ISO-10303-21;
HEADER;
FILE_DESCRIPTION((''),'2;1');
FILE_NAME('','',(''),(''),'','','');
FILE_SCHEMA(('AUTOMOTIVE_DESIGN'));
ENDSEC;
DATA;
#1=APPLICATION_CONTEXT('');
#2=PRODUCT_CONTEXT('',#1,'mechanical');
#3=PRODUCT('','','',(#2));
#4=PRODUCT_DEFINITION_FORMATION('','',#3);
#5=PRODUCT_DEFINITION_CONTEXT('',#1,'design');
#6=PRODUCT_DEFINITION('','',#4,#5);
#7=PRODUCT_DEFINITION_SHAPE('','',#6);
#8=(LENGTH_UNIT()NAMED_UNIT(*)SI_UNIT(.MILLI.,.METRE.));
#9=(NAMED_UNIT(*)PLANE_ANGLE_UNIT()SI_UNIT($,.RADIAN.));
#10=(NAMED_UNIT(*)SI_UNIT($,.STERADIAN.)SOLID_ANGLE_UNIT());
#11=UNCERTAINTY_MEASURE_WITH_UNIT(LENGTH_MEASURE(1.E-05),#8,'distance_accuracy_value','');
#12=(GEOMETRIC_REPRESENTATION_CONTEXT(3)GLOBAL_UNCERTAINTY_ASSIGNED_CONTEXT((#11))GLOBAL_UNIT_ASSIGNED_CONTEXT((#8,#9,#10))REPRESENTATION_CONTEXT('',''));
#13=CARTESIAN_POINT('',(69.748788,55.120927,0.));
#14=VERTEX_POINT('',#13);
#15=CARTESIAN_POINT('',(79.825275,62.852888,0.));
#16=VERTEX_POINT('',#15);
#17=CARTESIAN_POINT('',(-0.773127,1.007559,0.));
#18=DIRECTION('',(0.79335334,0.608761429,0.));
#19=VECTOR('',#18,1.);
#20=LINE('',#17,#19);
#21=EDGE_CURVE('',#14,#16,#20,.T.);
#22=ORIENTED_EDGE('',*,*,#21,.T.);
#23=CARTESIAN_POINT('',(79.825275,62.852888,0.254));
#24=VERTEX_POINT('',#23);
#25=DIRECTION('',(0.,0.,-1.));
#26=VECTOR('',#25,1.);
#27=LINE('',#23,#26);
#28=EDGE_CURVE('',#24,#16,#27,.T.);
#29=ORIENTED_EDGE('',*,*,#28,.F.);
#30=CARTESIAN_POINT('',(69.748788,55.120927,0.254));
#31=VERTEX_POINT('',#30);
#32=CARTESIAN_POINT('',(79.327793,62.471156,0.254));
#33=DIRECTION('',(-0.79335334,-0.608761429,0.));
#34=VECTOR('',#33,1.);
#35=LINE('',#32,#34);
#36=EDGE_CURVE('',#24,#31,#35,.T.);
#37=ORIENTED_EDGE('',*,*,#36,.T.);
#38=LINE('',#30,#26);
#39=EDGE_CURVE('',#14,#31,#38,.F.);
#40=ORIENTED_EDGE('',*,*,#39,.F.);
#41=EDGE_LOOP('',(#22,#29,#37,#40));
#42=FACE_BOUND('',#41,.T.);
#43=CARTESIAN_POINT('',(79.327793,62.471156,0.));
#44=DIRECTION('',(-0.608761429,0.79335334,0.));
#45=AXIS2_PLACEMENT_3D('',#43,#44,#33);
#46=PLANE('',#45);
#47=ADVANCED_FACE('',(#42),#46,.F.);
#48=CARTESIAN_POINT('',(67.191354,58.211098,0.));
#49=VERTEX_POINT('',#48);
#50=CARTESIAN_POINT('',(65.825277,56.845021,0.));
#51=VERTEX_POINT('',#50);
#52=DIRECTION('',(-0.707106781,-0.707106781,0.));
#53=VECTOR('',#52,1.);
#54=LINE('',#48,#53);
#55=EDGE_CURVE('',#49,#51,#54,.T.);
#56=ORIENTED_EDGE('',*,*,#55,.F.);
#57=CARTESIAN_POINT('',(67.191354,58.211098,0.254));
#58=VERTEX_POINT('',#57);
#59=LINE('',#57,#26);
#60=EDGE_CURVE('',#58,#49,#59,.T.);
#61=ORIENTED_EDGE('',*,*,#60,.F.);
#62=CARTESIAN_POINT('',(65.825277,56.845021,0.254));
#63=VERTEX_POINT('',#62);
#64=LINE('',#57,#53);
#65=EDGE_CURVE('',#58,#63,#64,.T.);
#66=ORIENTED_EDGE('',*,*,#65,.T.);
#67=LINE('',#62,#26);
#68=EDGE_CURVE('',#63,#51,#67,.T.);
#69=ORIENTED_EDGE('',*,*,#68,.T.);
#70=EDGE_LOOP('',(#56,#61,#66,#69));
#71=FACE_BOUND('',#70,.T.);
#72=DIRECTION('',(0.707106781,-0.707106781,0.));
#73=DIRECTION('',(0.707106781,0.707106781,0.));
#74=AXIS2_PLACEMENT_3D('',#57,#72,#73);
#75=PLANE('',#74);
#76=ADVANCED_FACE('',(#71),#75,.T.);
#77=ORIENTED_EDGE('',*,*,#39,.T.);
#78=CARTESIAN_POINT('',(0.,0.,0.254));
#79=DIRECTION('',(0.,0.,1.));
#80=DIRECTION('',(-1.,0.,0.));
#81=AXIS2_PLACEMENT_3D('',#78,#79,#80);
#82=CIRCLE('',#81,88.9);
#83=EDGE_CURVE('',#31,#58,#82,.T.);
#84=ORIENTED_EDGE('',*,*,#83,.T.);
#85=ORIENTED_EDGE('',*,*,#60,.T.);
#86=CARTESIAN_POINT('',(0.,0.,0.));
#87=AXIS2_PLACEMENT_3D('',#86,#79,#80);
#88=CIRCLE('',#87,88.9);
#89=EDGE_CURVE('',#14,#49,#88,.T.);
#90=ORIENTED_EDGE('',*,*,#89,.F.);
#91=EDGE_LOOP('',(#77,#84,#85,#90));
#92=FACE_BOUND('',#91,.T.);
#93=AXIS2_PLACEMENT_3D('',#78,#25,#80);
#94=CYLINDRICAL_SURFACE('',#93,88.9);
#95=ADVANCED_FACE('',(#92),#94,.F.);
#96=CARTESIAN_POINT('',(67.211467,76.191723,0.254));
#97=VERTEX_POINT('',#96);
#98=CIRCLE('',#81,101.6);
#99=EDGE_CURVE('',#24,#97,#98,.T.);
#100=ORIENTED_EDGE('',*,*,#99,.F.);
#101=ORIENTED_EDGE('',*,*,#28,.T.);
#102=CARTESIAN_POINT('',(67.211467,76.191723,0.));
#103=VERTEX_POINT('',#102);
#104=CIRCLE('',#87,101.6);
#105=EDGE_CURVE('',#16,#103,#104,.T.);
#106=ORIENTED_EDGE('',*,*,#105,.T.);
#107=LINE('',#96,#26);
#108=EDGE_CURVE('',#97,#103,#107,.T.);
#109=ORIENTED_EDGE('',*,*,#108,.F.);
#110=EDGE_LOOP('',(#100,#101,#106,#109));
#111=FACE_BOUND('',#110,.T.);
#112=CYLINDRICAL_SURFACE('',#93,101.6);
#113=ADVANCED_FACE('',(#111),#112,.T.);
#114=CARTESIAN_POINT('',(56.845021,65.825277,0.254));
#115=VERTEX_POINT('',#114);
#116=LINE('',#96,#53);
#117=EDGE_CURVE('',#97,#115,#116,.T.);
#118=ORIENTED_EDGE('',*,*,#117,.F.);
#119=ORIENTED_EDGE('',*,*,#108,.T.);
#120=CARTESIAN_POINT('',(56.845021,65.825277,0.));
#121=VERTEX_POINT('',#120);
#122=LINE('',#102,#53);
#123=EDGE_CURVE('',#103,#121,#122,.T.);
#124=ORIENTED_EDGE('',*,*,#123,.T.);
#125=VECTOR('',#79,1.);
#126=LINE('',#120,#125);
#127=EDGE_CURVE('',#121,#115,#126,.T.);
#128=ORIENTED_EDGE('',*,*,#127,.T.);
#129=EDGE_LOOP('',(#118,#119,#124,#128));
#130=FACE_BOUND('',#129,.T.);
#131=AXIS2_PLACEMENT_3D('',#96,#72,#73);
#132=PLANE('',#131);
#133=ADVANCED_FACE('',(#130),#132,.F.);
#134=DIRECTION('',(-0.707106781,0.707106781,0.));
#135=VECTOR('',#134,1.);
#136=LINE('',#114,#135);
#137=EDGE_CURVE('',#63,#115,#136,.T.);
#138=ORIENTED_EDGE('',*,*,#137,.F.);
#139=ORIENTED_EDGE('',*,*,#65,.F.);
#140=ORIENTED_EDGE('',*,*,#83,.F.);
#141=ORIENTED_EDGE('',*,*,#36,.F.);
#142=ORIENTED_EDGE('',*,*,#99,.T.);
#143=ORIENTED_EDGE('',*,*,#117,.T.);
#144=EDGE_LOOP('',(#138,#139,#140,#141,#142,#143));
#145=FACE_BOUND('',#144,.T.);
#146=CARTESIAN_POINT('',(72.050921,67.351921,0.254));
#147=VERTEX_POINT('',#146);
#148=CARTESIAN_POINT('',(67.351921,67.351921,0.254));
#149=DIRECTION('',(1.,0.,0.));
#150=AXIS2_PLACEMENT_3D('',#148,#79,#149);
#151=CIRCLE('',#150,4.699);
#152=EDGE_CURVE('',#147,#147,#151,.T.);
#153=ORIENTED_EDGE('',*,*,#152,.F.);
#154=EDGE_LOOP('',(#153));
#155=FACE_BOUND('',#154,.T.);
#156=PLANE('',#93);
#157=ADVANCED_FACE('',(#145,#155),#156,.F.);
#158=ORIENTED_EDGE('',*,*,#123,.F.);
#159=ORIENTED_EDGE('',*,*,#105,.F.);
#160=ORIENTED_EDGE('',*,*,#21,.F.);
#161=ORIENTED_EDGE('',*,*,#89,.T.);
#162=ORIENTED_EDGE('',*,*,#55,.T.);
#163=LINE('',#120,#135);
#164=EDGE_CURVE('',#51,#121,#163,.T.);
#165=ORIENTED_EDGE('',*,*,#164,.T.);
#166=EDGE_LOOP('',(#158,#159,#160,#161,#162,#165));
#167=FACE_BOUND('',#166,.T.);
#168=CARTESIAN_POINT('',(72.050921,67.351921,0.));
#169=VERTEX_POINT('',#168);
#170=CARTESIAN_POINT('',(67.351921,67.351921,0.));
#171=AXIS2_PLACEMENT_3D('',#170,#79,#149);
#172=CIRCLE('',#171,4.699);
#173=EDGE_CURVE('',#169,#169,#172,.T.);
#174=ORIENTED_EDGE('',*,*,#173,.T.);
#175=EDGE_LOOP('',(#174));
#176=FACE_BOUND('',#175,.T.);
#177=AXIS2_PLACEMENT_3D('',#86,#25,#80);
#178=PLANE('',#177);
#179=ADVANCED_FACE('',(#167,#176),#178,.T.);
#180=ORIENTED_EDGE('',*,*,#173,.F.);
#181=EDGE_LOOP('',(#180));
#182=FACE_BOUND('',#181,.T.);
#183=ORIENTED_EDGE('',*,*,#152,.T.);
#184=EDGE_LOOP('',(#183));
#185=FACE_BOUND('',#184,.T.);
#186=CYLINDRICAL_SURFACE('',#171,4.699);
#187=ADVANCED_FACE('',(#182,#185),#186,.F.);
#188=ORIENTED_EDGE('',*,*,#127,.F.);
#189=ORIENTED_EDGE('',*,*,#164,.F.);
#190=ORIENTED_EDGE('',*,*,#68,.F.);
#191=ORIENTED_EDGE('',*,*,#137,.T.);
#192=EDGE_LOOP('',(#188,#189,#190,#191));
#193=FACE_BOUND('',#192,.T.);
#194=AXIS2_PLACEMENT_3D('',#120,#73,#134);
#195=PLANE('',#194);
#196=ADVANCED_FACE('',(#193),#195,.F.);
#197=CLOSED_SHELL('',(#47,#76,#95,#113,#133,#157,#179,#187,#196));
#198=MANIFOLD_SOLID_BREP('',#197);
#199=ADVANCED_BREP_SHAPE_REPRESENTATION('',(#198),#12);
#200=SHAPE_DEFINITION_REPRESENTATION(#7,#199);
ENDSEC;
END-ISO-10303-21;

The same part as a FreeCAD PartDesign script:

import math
import FreeCAD as App
import Part
import Sketcher
Q = App.Units.Quantity


def add_polygon(sketch, points):
    """Adds a closed chain of lines whose ends are joined by coincident constraints."""
    first, n = sketch.GeometryCount, len(points)
    for a, b in zip(points, points[1:] + points[:1]):
        sketch.addGeometry(Part.LineSegment(App.Vector(*a, 0), App.Vector(*b, 0)), False)
    for i in range(n):
        sketch.addConstraint(Sketcher.Constraint("Coincident", first + i, 2, first + (i + 1) % n, 1))

doc = App.newDocument("Part")
params = doc.addObject("Spreadsheet::Sheet", "Params")
for row, (alias, value) in enumerate([
    ("sketch1_radius", "4 in"),
    ("sketch1_radius2", "3.5 in"),
    ("sketch1_radius3", "0.625 in"),
    ("sketch1_radius4", "1.125 in"),
    ("pad1_length", "0.01 in"),
    ("sketch2_diameter", "0.37 in"),
    ("sketch3_width", "0.1 in"),
    ("sketch3_length", "0.1 in"),
    ("sketch3_length2", "0.05 in"),
    ("sketch3_height", "0.025 in"),
    ("sketch3_length3", "0.025 in"),
    ("sketch4_length", "0.635 in"),
], start=1):
    params.set(f"A{row}", alias)
    params.set(f"B{row}", "=" + value)
    params.setAlias(f"B{row}", alias)

body = doc.addObject("PartDesign::Body", "Body")

sketch1 = doc.addObject("Sketcher::SketchObject", "Sketch")
body.addObject(sketch1)
sketch1.AttachmentSupport = (doc.XY_Plane, [""])
sketch1.MapMode = "FlatFace"
sketch1.addGeometry([
    Part.LineSegment(App.Vector(67.2, 76.2, 0), App.Vector(8.7, 17.7, 0)),
    Part.LineSegment(App.Vector(8.7, 17.7, 0), App.Vector(7.2, 14.1, 0)),
    Part.ArcOfCircle(Part.Circle(App.Vector(0, 0, 0), App.Vector(0, 0, 1), 15.9), math.radians(-18), math.radians(63)),
    Part.LineSegment(App.Vector(15.1, -4.9, 0), App.Vector(18.6, -6.3, 0)),
    Part.LineSegment(App.Vector(18.6, -6.3, 0), App.Vector(101.4, -6.3, 0)),
    Part.ArcOfCircle(Part.Circle(App.Vector(0, 0, 0), App.Vector(0, 0, 1), 101.6), math.radians(-4), math.radians(49)),
    Part.ArcOfCircle(Part.Circle(App.Vector(0, 0, 0), App.Vector(0, 0, 1), 88.9), math.radians(4), math.radians(41)),
    Part.LineSegment(App.Vector(88.7, 6.3, 0), App.Vector(27.9, 6.3, 0)),
    Part.ArcOfCircle(Part.Circle(App.Vector(0, 0, 0), App.Vector(0, 0, 1), 28.6), math.radians(12.84), math.radians(32.16)),
    Part.LineSegment(App.Vector(24.2, 15.2, 0), App.Vector(67.2, 58.2, 0)),
], False)
sketch1.addConstraint([
    Sketcher.Constraint("Coincident", 0, 2, 1, 1),
    Sketcher.Constraint("Coincident", 1, 2, 2, 2),
    Sketcher.Constraint("Coincident", 2, 1, 3, 1),
    Sketcher.Constraint("Coincident", 3, 2, 4, 1),
    Sketcher.Constraint("Coincident", 4, 2, 5, 1),
    Sketcher.Constraint("Coincident", 5, 2, 0, 1),
    Sketcher.Constraint("Coincident", 6, 1, 7, 1),
    Sketcher.Constraint("Coincident", 7, 2, 8, 1),
    Sketcher.Constraint("Coincident", 8, 2, 9, 1),
    Sketcher.Constraint("Coincident", 9, 2, 6, 2),
    Sketcher.Constraint("Horizontal", 4),
    Sketcher.Constraint("Horizontal", 7),
    Sketcher.Constraint("Coincident", 2, 3, -1, 1),
    Sketcher.Constraint("Coincident", 5, 3, -1, 1),
    Sketcher.Constraint("Coincident", 6, 3, -1, 1),
    Sketcher.Constraint("Coincident", 8, 3, -1, 1),
    Sketcher.Constraint("Perpendicular", 1, 3),
    Sketcher.Constraint("Parallel", 0, 9),
    Sketcher.Constraint("Equal", 1, 3),
    Sketcher.Constraint("Radius", 5, Q("4 in")),
    Sketcher.Constraint("Radius", 6, Q("3.5 in")),
    Sketcher.Constraint("Angle", 0, Q("-135 deg")),
    Sketcher.Constraint("Radius", 2, Q("0.625 in")),
    Sketcher.Constraint("Radius", 8, Q("1.125 in")),
    Sketcher.Constraint("Angle", 1, Q("-112.5 deg")),
    Sketcher.Constraint("DistanceY", 4, 2, 6, 1, Q("0.5 in")),
    Sketcher.Constraint("DistanceY", 3, 2, -1, 1, Q("0.25 in")),
    Sketcher.Constraint("DistanceY", 2, 1, -1, 1, 4.882301),
    Sketcher.Constraint("DistanceY", -1, 1, 9, 2, 58.211098),
    Sketcher.Constraint("DistanceX", 5, 2, 4, 2, 34.189901),
])
sketch1.setExpression("Constraints[19]", "Params.sketch1_radius")
sketch1.setExpression("Constraints[20]", "Params.sketch1_radius2")
sketch1.setExpression("Constraints[22]", "Params.sketch1_radius3")
sketch1.setExpression("Constraints[23]", "Params.sketch1_radius4")
pad1 = doc.addObject("PartDesign::Pad", "Pad")
body.addObject(pad1)
pad1.Profile = sketch1
pad1.setExpression("Length", "Params.pad1_length")

sketch2 = doc.addObject("Sketcher::SketchObject", "Sketch001")
body.addObject(sketch2)
sketch2.AttachmentSupport = (doc.XY_Plane, [""])
sketch2.MapMode = "FlatFace"
sketch2.AttachmentOffset = App.Placement(App.Vector(0, 0, 0.01 * 25.4), App.Rotation())
sketch2.addGeometry([
    Part.Circle(App.Vector(22.2, 0, 0), App.Vector(0, 0, 1), 4.7),
    Part.Circle(App.Vector(36.2, 0, 0), App.Vector(0, 0, 1), 4.7),
    Part.Circle(App.Vector(61.7, 0, 0), App.Vector(0, 0, 1), 4.7),
    Part.Circle(App.Vector(75.7, 0, 0), App.Vector(0, 0, 1), 4.7),
    Part.Circle(App.Vector(95.2, 0, 0), App.Vector(0, 0, 1), 4.7),
    Part.Circle(App.Vector(15.7, 15.7, 0), App.Vector(0, 0, 1), 4.7),
    Part.Circle(App.Vector(25.6, 25.6, 0), App.Vector(0, 0, 1), 4.7),
    Part.Circle(App.Vector(43.6, 43.6, 0), App.Vector(0, 0, 1), 4.7),
    Part.Circle(App.Vector(53.5, 53.5, 0), App.Vector(0, 0, 1), 4.7),
    Part.Circle(App.Vector(92, 24.7, 0), App.Vector(0, 0, 1), 4.7),
    Part.Circle(App.Vector(82.5, 47.6, 0), App.Vector(0, 0, 1), 4.7),
    Part.Circle(App.Vector(67.4, 67.4, 0), App.Vector(0, 0, 1), 4.7),
], False)
sketch2.addConstraint([
    Sketcher.Constraint("Equal", 0, 1),
    Sketcher.Constraint("Equal", 1, 2),
    Sketcher.Constraint("Equal", 2, 3),
    Sketcher.Constraint("Equal", 3, 4),
    Sketcher.Constraint("Equal", 4, 5),
    Sketcher.Constraint("Equal", 5, 6),
    Sketcher.Constraint("Equal", 6, 7),
    Sketcher.Constraint("Equal", 7, 8),
    Sketcher.Constraint("Equal", 8, 9),
    Sketcher.Constraint("Equal", 9, 10),
    Sketcher.Constraint("Equal", 10, 11),
    Sketcher.Constraint("PointOnObject", 0, 3, -1),
    Sketcher.Constraint("PointOnObject", 1, 3, -1),
    Sketcher.Constraint("PointOnObject", 2, 3, -1),
    Sketcher.Constraint("PointOnObject", 3, 3, -1),
    Sketcher.Constraint("PointOnObject", 4, 3, -1),
    Sketcher.Constraint("Diameter", 0, Q("0.37 in")),
    Sketcher.Constraint("DistanceX", -1, 1, 2, 3, Q("2.43 in")),
    Sketcher.Constraint("DistanceX", -1, 1, 3, 3, Q("2.98 in")),
    Sketcher.Constraint("DistanceX", -1, 1, 4, 3, Q("3.75 in")),
    Sketcher.Constraint("DistanceX", 0, 3, 1, 3, Q("0.55 in")),
    Sketcher.Constraint("DistanceX", -1, 1, 0, 3, Q("0.875 in")),
    Sketcher.Constraint("DistanceY", -1, 1, 10, 3, Q("1.875 in")),
    Sketcher.Constraint("DistanceX", 11, 3, 10, 3, 15.136999),
    Sketcher.Constraint("DistanceX", -1, 1, 5, 3, 15.715448),
    Sketcher.Constraint("DistanceY", -1, 1, 5, 3, 15.715448),
    Sketcher.Constraint("DistanceX", -1, 1, 6, 3, 25.59373),
    Sketcher.Constraint("DistanceY", -1, 1, 6, 3, 25.59373),
    Sketcher.Constraint("DistanceX", -1, 1, 10, 3, 82.48892),
    Sketcher.Constraint("DistanceY", -1, 1, 11, 3, 67.351921),
    Sketcher.Constraint("DistanceX", 7, 3, 8, 3, 9.878282),
    Sketcher.Constraint("DistanceY", 7, 3, 8, 3, 9.878282),
    Sketcher.Constraint("DistanceX", 5, 3, 8, 3, 37.806878),
    Sketcher.Constraint("DistanceY", 5, 3, 8, 3, 37.806878),
    Sketcher.Constraint("DistanceX", 8, 3, 9, 3, 38.482108),
    Sketcher.Constraint("DistanceY", 9, 3, 7, 3, 18.991531),
])
sketch2.setExpression("Constraints[16]", "Params.sketch2_diameter")
pocket1 = doc.addObject("PartDesign::Pocket", "Pocket")
body.addObject(pocket1)
pocket1.Profile = sketch2
pocket1.Type = "ThroughAll"

sketch3 = doc.addObject("Sketcher::SketchObject", "Sketch002")
body.addObject(sketch3)
sketch3.AttachmentSupport = (doc.XY_Plane, [""])
sketch3.MapMode = "FlatFace"
sketch3.AttachmentOffset = App.Placement(App.Vector(0, 0, 0.01 * 25.4), App.Rotation())
add_polygon(sketch3, [(17.1, 26), (15.3, 24.2), (15.7, 23.8), (17.5, 25.6)])
add_polygon(sketch3, [(45, 54), (43.2, 52.2), (43.6, 51.7), (45.4, 53.5)])
add_polygon(sketch3, [(27.9, -5.7), (27.9, -6.3), (30.5, -6.3), (30.5, -5.7)])
add_polygon(sketch3, [(67.4, -5.7), (67.4, -6.3), (70, -6.3), (70, -5.7)])
add_polygon(sketch3, [(31, 40), (29.2, 38.2), (29.7, 37.8), (31.5, 39.6)])
add_polygon(sketch3, [(56.8, 65.8), (55, 64), (55.5, 63.6), (57.3, 65.4)])
add_polygon(sketch3, [(47.7, -5.7), (47.7, -6.3), (50.2, -6.3), (50.2, -5.7)])
add_polygon(sketch3, [(84.2, -5.7), (84.2, -6.3), (86.7, -6.3), (86.7, -5.7)])
add_polygon(sketch3, [(99.9, 14.4), (100.3, 11.9), (101.5, 12.1), (101.2, 14.6)])
add_polygon(sketch3, [(93.8, 37.5), (94.9, 38), (94, 40.3), (92.8, 39.8)])
add_polygon(sketch3, [(79.3, 62.5), (80.9, 60.5), (81.9, 61.2), (80.3, 63.2)])
add_polygon(sketch3, [(13.6, 7), (14.6, 4.7), (15.7, 5.1), (14.8, 7.5)])
sketch3.addConstraint([
    Sketcher.Constraint("Vertical", 8),
    Sketcher.Constraint("Horizontal", 9),
    Sketcher.Constraint("Vertical", 10),
    Sketcher.Constraint("Horizontal", 11),
    Sketcher.Constraint("Vertical", 12),
    Sketcher.Constraint("Horizontal", 13),
    Sketcher.Constraint("Vertical", 14),
    Sketcher.Constraint("Horizontal", 15),
    Sketcher.Constraint("Vertical", 24),
    Sketcher.Constraint("Horizontal", 25),
    Sketcher.Constraint("Vertical", 26),
    Sketcher.Constraint("Horizontal", 27),
    Sketcher.Constraint("Vertical", 28),
    Sketcher.Constraint("Horizontal", 29),
    Sketcher.Constraint("Vertical", 30),
    Sketcher.Constraint("Horizontal", 31),
    Sketcher.Constraint("Perpendicular", 0, 1),
    Sketcher.Constraint("Perpendicular", 1, 2),
    Sketcher.Constraint("Perpendicular", 2, 3),
    Sketcher.Constraint("Perpendicular", 3, 4),
    Sketcher.Constraint("Perpendicular", 4, 5),
    Sketcher.Constraint("Perpendicular", 5, 6),
    Sketcher.Constraint("Perpendicular", 6, 7),
    Sketcher.Constraint("Perpendicular", 7, 16),
    Sketcher.Constraint("Perpendicular", 16, 17),
    Sketcher.Constraint("Perpendicular", 17, 18),
    Sketcher.Constraint("Perpendicular", 18, 19),
    Sketcher.Constraint("Perpendicular", 19, 20),
    Sketcher.Constraint("Perpendicular", 20, 21),
    Sketcher.Constraint("Perpendicular", 21, 22),
    Sketcher.Constraint("Perpendicular", 22, 23),
    Sketcher.Constraint("Perpendicular", 32, 33),
    Sketcher.Constraint("Perpendicular", 33, 34),
    Sketcher.Constraint("Perpendicular", 34, 35),
    Sketcher.Constraint("Perpendicular", 36, 37),
    Sketcher.Constraint("Perpendicular", 37, 38),
    Sketcher.Constraint("Perpendicular", 38, 39),
    Sketcher.Constraint("Perpendicular", 40, 41),
    Sketcher.Constraint("Perpendicular", 41, 42),
    Sketcher.Constraint("Perpendicular", 42, 43),
    Sketcher.Constraint("Parallel", 39, 44),
    Sketcher.Constraint("Perpendicular", 44, 45),
    Sketcher.Constraint("Perpendicular", 45, 46),
    Sketcher.Constraint("Perpendicular", 46, 47),
    Sketcher.Constraint("Horizontal", 9, 2, 12, 2),
    Sketcher.Constraint("Horizontal", 11, 2, 14, 2),
    Sketcher.Constraint("Horizontal", 13, 2, 24, 2),
    Sketcher.Constraint("Horizontal", 15, 2, 26, 2),
    Sketcher.Constraint("Horizontal", 25, 2, 28, 2),
    Sketcher.Constraint("Horizontal", 27, 2, 30, 2),
    Sketcher.Constraint("Equal", 11, 13),
    Sketcher.Constraint("Equal", 15, 25),
    Sketcher.Constraint("Equal", 27, 29),
    Sketcher.Constraint("Equal", 2, 4),
    Sketcher.Constraint("Equal", 3, 5),
    Sketcher.Constraint("Equal", 6, 16),
    Sketcher.Constraint("Equal", 7, 17),
    Sketcher.Constraint("Equal", 18, 20),
    Sketcher.Constraint("Equal", 19, 21),
    Sketcher.Constraint("Equal", 22, 32),
    Sketcher.Constraint("Equal", 35, 36),
    Sketcher.Constraint("Equal", 34, 37),
    Sketcher.Constraint("Equal", 39, 40),
    Sketcher.Constraint("Equal", 38, 41),
    Sketcher.Constraint("Equal", 42, 44),
    Sketcher.Constraint("Equal", 43, 45),
    Sketcher.Constraint("DistanceX", 9, 1, 9, 2, Q("0.1 in")),
    Sketcher.Constraint("Angle", 0, Q("-135 deg")),
    Sketcher.Constraint("Distance", 0, Q("0.1 in")),
    Sketcher.Constraint("DistanceX", -1, 1, 8, 2, Q("1.1 in")),
    Sketcher.Constraint("Angle", 32, Q("-82.5 deg")),
    Sketcher.Constraint("Angle", 36, Q("22.5 deg")),
    Sketcher.Constraint("Angle", 40, Q("-52.5 deg")),
    Sketcher.Constraint("Distance", 33, Q("0.05 in")),
    Sketcher.Constraint("DistanceY", 8, 2, 8, 1, Q("0.025 in")),
    Sketcher.Constraint("DistanceY", 8, 2, -1, 1, Q("0.25 in")),
    Sketcher.Constraint("DistanceX", 13, 2, 28, 2, Q("0.56 in")),
    Sketcher.Constraint("Distance", 1, Q("0.025 in")),
    Sketcher.Constraint("DistanceX", -1, 1, 12, 2, Q("2.655 in")),
    Sketcher.Constraint("DistanceX", -1, 1, 24, 2, Q("1.8775 in")),
    Sketcher.Constraint("DistanceX", -1, 1, 2, 2, 17.511499),
    Sketcher.Constraint("DistanceX", -1, 1, 32, 2, 100.266999),
    Sketcher.Constraint("DistanceX", 16, 2, 4, 2, 13.964298),
    Sketcher.Constraint("DistanceY", 16, 2, 4, 2, 13.964298),
    Sketcher.Constraint("DistanceX", 0, 2, 16, 2, 13.964298),
    Sketcher.Constraint("DistanceY", 0, 2, 16, 2, 13.964298),
    Sketcher.Constraint("DistanceY", 6, 2, 20, 2, 10.5069),
    Sketcher.Constraint("DistanceX", 7, 2, 21, 2, 10.5069),
    Sketcher.Constraint("DistanceY", 35, 2, 36, 2, 23.512602),
    Sketcher.Constraint("DistanceX", 36, 2, 33, 2, 6.587302),
    Sketcher.Constraint("DistanceY", 37, 2, 41, 2, 20.932198),
    Sketcher.Constraint("DistanceY", 41, 2, 22, 2, 4.147099),
    Sketcher.Constraint("DistanceY", 46, 2, 2, 2, 18.102299),
    Sketcher.Constraint("DistanceY", -1, 1, 0, 2, 24.246692),
    Sketcher.Constraint("DistanceX", -1, 1, 42, 2, 80.335352),
    Sketcher.Constraint("DistanceX", -1, 1, 45, 2, 15.739259),
])
sketch3.setExpression("Constraints[114]", "Params.sketch3_width")
sketch3.setExpression("Constraints[116]", "Params.sketch3_length")
sketch3.setExpression("Constraints[121]", "Params.sketch3_length2")
sketch3.setExpression("Constraints[122]", "Params.sketch3_height")
sketch3.setExpression("Constraints[125]", "Params.sketch3_length3")
pocket2 = doc.addObject("PartDesign::Pocket", "Pocket001")
body.addObject(pocket2)
pocket2.Profile = sketch3
pocket2.Type = "ThroughAll"

sketch4 = doc.addObject("Sketcher::SketchObject", "Sketch003")
body.addObject(sketch4)
sketch4.AttachmentSupport = (doc.XY_Plane, [""])
sketch4.MapMode = "FlatFace"
sketch4.AttachmentOffset = App.Placement(App.Vector(0, 0, 0.01 * 25.4), App.Rotation())
add_polygon(sketch4, [(-6, 90), (-6, -20), (115, -20), (115, 90)])
add_polygon(sketch4, [(69, 54), (56, 67), (67, 78), (81, 64)])
sketch4.addConstraint([
    Sketcher.Constraint("Vertical", 0),
    Sketcher.Constraint("Horizontal", 1),
    Sketcher.Constraint("Vertical", 2),
    Sketcher.Constraint("Horizontal", 3),
    Sketcher.Constraint("Perpendicular", 4, 5),
    Sketcher.Constraint("Perpendicular", 5, 6),
    Sketcher.Constraint("Angle", 4, Q("135 deg")),
    Sketcher.Constraint("Angle", 7, Q("-142.5 deg")),
    Sketcher.Constraint("Distance", 5, Q("0.635 in")),
    Sketcher.Constraint("DistanceX", 1, 1, 1, 2, 121.447),
    Sketcher.Constraint("DistanceY", 0, 2, 0, 1, 109.618),
    Sketcher.Constraint("DistanceX", 0, 2, -1, 1, 6.309),
    Sketcher.Constraint("DistanceY", 0, 2, -1, 1, 19.888),
    Sketcher.Constraint("DistanceX", -1, 1, 7, 2, 68.5043),
    Sketcher.Constraint("DistanceY", -1, 1, 7, 2, 54.165998),
    Sketcher.Constraint("Distance", 4, 17.758711),
])
sketch4.setExpression("Constraints[16]", "Params.sketch4_length")
pocket3 = doc.addObject("PartDesign::Pocket", "Pocket002")
body.addObject(pocket3)
pocket3.Profile = sketch4
pocket3.Type = "ThroughAll"

doc.recompute()
